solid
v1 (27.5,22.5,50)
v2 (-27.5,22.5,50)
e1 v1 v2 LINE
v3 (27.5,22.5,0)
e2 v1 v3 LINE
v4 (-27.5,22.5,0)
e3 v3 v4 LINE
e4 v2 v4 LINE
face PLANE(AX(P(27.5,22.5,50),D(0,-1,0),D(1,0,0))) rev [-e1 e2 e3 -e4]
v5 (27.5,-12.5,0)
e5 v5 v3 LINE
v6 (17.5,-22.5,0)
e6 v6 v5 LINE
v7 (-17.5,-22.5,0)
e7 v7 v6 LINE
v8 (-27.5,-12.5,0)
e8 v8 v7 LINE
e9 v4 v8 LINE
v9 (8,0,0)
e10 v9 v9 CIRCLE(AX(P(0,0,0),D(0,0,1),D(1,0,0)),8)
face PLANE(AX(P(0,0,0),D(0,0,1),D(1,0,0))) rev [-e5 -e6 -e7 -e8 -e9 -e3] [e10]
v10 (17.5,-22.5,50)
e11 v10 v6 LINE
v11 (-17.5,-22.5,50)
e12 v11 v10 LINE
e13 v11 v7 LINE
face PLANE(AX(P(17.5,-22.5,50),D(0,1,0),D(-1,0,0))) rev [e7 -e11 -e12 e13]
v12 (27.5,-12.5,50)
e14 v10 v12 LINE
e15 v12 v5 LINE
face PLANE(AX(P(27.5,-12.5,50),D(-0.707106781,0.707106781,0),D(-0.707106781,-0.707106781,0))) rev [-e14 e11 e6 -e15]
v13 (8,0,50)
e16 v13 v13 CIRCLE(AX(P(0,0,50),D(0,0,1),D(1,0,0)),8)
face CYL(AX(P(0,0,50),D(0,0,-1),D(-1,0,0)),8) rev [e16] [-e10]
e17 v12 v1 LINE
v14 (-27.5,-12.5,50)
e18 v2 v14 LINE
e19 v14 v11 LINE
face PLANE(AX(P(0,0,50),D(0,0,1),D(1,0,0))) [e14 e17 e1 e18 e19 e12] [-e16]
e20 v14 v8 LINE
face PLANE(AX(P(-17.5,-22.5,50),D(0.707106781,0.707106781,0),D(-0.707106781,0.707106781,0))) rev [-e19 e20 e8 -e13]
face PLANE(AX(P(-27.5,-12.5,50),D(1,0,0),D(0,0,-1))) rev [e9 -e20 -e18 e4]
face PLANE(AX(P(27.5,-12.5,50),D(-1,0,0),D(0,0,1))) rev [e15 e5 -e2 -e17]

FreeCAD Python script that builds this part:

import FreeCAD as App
import Part
import Sketcher

V = App.Vector


def add_polygon(sketch, points):
    """Adds a closed chain of lines whose ends are joined by coincident constraints."""
    first, n = sketch.GeometryCount, len(points)
    for a, b in zip(points, points[1:] + points[:1]):
        sketch.addGeometry(Part.LineSegment(App.Vector(*a, 0), App.Vector(*b, 0)), False)
    for i in range(n):
        sketch.addConstraint(Sketcher.Constraint("Coincident", first + i, 2, first + (i + 1) % n, 1))

doc = App.newDocument("Part")
params = doc.addObject("Spreadsheet::Sheet", "Params")
for row, (alias, value) in enumerate([
    ("sketch1_diameter", "16 mm"),
    ("sketch1_width", "35 mm"),
    ("sketch1_width2", "55 mm"),
    ("pad1_length", "50 mm"),
], start=1):
    params.set(f"A{row}", alias)
    params.set(f"B{row}", "=" + value)
    params.setAlias(f"B{row}", alias)

body = doc.addObject("PartDesign::Body", "Body")

sketch1 = body.newObject("Sketcher::SketchObject", "Sketch")
sketch1.AttachmentSupport = (doc.getObject("XY_Plane"), [""])
sketch1.MapMode = "FlatFace"
add_polygon(sketch1, [(-28, -12), (-18, -22), (18, -22), (28, -12), (28, 22), (-28, 22)])
sketch1.addGeometry(Part.Circle(V(0, 0, 0), V(0, 0, 1), 8), False)
sketch1.addConstraint([
    Sketcher.Constraint("Horizontal", 1),
    Sketcher.Constraint("Vertical", 3),
    Sketcher.Constraint("Horizontal", 4),
    Sketcher.Constraint("Vertical", 5),
    Sketcher.Constraint("Coincident", 6, 3, -1, 1),
    Sketcher.Constraint("Symmetric", 2, 2, 5, 2, -2),
    Sketcher.Constraint("Perpendicular", 0, 2),
    Sketcher.Constraint("Equal", 1, 3),
    Sketcher.Constraint("Equal", 0, 2),
    Sketcher.Constraint("Diameter", 6, 16.0),
    Sketcher.Constraint("DistanceX", 1, 1, 1, 2, 35.0),
    Sketcher.Constraint("DistanceX", 4, 2, 4, 1, 55.0),
    Sketcher.Constraint("DistanceY", 0, 2, -1, 1, 22.5),
])
sketch1.setExpression("Constraints[15]", "Params.sketch1_diameter")
sketch1.setExpression("Constraints[16]", "Params.sketch1_width")
sketch1.setExpression("Constraints[17]", "Params.sketch1_width2")
pad1 = body.newObject("PartDesign::Pad", "Pad")
pad1.Profile = sketch1
pad1.setExpression("Length", "Params.pad1_length")

doc.recompute()
